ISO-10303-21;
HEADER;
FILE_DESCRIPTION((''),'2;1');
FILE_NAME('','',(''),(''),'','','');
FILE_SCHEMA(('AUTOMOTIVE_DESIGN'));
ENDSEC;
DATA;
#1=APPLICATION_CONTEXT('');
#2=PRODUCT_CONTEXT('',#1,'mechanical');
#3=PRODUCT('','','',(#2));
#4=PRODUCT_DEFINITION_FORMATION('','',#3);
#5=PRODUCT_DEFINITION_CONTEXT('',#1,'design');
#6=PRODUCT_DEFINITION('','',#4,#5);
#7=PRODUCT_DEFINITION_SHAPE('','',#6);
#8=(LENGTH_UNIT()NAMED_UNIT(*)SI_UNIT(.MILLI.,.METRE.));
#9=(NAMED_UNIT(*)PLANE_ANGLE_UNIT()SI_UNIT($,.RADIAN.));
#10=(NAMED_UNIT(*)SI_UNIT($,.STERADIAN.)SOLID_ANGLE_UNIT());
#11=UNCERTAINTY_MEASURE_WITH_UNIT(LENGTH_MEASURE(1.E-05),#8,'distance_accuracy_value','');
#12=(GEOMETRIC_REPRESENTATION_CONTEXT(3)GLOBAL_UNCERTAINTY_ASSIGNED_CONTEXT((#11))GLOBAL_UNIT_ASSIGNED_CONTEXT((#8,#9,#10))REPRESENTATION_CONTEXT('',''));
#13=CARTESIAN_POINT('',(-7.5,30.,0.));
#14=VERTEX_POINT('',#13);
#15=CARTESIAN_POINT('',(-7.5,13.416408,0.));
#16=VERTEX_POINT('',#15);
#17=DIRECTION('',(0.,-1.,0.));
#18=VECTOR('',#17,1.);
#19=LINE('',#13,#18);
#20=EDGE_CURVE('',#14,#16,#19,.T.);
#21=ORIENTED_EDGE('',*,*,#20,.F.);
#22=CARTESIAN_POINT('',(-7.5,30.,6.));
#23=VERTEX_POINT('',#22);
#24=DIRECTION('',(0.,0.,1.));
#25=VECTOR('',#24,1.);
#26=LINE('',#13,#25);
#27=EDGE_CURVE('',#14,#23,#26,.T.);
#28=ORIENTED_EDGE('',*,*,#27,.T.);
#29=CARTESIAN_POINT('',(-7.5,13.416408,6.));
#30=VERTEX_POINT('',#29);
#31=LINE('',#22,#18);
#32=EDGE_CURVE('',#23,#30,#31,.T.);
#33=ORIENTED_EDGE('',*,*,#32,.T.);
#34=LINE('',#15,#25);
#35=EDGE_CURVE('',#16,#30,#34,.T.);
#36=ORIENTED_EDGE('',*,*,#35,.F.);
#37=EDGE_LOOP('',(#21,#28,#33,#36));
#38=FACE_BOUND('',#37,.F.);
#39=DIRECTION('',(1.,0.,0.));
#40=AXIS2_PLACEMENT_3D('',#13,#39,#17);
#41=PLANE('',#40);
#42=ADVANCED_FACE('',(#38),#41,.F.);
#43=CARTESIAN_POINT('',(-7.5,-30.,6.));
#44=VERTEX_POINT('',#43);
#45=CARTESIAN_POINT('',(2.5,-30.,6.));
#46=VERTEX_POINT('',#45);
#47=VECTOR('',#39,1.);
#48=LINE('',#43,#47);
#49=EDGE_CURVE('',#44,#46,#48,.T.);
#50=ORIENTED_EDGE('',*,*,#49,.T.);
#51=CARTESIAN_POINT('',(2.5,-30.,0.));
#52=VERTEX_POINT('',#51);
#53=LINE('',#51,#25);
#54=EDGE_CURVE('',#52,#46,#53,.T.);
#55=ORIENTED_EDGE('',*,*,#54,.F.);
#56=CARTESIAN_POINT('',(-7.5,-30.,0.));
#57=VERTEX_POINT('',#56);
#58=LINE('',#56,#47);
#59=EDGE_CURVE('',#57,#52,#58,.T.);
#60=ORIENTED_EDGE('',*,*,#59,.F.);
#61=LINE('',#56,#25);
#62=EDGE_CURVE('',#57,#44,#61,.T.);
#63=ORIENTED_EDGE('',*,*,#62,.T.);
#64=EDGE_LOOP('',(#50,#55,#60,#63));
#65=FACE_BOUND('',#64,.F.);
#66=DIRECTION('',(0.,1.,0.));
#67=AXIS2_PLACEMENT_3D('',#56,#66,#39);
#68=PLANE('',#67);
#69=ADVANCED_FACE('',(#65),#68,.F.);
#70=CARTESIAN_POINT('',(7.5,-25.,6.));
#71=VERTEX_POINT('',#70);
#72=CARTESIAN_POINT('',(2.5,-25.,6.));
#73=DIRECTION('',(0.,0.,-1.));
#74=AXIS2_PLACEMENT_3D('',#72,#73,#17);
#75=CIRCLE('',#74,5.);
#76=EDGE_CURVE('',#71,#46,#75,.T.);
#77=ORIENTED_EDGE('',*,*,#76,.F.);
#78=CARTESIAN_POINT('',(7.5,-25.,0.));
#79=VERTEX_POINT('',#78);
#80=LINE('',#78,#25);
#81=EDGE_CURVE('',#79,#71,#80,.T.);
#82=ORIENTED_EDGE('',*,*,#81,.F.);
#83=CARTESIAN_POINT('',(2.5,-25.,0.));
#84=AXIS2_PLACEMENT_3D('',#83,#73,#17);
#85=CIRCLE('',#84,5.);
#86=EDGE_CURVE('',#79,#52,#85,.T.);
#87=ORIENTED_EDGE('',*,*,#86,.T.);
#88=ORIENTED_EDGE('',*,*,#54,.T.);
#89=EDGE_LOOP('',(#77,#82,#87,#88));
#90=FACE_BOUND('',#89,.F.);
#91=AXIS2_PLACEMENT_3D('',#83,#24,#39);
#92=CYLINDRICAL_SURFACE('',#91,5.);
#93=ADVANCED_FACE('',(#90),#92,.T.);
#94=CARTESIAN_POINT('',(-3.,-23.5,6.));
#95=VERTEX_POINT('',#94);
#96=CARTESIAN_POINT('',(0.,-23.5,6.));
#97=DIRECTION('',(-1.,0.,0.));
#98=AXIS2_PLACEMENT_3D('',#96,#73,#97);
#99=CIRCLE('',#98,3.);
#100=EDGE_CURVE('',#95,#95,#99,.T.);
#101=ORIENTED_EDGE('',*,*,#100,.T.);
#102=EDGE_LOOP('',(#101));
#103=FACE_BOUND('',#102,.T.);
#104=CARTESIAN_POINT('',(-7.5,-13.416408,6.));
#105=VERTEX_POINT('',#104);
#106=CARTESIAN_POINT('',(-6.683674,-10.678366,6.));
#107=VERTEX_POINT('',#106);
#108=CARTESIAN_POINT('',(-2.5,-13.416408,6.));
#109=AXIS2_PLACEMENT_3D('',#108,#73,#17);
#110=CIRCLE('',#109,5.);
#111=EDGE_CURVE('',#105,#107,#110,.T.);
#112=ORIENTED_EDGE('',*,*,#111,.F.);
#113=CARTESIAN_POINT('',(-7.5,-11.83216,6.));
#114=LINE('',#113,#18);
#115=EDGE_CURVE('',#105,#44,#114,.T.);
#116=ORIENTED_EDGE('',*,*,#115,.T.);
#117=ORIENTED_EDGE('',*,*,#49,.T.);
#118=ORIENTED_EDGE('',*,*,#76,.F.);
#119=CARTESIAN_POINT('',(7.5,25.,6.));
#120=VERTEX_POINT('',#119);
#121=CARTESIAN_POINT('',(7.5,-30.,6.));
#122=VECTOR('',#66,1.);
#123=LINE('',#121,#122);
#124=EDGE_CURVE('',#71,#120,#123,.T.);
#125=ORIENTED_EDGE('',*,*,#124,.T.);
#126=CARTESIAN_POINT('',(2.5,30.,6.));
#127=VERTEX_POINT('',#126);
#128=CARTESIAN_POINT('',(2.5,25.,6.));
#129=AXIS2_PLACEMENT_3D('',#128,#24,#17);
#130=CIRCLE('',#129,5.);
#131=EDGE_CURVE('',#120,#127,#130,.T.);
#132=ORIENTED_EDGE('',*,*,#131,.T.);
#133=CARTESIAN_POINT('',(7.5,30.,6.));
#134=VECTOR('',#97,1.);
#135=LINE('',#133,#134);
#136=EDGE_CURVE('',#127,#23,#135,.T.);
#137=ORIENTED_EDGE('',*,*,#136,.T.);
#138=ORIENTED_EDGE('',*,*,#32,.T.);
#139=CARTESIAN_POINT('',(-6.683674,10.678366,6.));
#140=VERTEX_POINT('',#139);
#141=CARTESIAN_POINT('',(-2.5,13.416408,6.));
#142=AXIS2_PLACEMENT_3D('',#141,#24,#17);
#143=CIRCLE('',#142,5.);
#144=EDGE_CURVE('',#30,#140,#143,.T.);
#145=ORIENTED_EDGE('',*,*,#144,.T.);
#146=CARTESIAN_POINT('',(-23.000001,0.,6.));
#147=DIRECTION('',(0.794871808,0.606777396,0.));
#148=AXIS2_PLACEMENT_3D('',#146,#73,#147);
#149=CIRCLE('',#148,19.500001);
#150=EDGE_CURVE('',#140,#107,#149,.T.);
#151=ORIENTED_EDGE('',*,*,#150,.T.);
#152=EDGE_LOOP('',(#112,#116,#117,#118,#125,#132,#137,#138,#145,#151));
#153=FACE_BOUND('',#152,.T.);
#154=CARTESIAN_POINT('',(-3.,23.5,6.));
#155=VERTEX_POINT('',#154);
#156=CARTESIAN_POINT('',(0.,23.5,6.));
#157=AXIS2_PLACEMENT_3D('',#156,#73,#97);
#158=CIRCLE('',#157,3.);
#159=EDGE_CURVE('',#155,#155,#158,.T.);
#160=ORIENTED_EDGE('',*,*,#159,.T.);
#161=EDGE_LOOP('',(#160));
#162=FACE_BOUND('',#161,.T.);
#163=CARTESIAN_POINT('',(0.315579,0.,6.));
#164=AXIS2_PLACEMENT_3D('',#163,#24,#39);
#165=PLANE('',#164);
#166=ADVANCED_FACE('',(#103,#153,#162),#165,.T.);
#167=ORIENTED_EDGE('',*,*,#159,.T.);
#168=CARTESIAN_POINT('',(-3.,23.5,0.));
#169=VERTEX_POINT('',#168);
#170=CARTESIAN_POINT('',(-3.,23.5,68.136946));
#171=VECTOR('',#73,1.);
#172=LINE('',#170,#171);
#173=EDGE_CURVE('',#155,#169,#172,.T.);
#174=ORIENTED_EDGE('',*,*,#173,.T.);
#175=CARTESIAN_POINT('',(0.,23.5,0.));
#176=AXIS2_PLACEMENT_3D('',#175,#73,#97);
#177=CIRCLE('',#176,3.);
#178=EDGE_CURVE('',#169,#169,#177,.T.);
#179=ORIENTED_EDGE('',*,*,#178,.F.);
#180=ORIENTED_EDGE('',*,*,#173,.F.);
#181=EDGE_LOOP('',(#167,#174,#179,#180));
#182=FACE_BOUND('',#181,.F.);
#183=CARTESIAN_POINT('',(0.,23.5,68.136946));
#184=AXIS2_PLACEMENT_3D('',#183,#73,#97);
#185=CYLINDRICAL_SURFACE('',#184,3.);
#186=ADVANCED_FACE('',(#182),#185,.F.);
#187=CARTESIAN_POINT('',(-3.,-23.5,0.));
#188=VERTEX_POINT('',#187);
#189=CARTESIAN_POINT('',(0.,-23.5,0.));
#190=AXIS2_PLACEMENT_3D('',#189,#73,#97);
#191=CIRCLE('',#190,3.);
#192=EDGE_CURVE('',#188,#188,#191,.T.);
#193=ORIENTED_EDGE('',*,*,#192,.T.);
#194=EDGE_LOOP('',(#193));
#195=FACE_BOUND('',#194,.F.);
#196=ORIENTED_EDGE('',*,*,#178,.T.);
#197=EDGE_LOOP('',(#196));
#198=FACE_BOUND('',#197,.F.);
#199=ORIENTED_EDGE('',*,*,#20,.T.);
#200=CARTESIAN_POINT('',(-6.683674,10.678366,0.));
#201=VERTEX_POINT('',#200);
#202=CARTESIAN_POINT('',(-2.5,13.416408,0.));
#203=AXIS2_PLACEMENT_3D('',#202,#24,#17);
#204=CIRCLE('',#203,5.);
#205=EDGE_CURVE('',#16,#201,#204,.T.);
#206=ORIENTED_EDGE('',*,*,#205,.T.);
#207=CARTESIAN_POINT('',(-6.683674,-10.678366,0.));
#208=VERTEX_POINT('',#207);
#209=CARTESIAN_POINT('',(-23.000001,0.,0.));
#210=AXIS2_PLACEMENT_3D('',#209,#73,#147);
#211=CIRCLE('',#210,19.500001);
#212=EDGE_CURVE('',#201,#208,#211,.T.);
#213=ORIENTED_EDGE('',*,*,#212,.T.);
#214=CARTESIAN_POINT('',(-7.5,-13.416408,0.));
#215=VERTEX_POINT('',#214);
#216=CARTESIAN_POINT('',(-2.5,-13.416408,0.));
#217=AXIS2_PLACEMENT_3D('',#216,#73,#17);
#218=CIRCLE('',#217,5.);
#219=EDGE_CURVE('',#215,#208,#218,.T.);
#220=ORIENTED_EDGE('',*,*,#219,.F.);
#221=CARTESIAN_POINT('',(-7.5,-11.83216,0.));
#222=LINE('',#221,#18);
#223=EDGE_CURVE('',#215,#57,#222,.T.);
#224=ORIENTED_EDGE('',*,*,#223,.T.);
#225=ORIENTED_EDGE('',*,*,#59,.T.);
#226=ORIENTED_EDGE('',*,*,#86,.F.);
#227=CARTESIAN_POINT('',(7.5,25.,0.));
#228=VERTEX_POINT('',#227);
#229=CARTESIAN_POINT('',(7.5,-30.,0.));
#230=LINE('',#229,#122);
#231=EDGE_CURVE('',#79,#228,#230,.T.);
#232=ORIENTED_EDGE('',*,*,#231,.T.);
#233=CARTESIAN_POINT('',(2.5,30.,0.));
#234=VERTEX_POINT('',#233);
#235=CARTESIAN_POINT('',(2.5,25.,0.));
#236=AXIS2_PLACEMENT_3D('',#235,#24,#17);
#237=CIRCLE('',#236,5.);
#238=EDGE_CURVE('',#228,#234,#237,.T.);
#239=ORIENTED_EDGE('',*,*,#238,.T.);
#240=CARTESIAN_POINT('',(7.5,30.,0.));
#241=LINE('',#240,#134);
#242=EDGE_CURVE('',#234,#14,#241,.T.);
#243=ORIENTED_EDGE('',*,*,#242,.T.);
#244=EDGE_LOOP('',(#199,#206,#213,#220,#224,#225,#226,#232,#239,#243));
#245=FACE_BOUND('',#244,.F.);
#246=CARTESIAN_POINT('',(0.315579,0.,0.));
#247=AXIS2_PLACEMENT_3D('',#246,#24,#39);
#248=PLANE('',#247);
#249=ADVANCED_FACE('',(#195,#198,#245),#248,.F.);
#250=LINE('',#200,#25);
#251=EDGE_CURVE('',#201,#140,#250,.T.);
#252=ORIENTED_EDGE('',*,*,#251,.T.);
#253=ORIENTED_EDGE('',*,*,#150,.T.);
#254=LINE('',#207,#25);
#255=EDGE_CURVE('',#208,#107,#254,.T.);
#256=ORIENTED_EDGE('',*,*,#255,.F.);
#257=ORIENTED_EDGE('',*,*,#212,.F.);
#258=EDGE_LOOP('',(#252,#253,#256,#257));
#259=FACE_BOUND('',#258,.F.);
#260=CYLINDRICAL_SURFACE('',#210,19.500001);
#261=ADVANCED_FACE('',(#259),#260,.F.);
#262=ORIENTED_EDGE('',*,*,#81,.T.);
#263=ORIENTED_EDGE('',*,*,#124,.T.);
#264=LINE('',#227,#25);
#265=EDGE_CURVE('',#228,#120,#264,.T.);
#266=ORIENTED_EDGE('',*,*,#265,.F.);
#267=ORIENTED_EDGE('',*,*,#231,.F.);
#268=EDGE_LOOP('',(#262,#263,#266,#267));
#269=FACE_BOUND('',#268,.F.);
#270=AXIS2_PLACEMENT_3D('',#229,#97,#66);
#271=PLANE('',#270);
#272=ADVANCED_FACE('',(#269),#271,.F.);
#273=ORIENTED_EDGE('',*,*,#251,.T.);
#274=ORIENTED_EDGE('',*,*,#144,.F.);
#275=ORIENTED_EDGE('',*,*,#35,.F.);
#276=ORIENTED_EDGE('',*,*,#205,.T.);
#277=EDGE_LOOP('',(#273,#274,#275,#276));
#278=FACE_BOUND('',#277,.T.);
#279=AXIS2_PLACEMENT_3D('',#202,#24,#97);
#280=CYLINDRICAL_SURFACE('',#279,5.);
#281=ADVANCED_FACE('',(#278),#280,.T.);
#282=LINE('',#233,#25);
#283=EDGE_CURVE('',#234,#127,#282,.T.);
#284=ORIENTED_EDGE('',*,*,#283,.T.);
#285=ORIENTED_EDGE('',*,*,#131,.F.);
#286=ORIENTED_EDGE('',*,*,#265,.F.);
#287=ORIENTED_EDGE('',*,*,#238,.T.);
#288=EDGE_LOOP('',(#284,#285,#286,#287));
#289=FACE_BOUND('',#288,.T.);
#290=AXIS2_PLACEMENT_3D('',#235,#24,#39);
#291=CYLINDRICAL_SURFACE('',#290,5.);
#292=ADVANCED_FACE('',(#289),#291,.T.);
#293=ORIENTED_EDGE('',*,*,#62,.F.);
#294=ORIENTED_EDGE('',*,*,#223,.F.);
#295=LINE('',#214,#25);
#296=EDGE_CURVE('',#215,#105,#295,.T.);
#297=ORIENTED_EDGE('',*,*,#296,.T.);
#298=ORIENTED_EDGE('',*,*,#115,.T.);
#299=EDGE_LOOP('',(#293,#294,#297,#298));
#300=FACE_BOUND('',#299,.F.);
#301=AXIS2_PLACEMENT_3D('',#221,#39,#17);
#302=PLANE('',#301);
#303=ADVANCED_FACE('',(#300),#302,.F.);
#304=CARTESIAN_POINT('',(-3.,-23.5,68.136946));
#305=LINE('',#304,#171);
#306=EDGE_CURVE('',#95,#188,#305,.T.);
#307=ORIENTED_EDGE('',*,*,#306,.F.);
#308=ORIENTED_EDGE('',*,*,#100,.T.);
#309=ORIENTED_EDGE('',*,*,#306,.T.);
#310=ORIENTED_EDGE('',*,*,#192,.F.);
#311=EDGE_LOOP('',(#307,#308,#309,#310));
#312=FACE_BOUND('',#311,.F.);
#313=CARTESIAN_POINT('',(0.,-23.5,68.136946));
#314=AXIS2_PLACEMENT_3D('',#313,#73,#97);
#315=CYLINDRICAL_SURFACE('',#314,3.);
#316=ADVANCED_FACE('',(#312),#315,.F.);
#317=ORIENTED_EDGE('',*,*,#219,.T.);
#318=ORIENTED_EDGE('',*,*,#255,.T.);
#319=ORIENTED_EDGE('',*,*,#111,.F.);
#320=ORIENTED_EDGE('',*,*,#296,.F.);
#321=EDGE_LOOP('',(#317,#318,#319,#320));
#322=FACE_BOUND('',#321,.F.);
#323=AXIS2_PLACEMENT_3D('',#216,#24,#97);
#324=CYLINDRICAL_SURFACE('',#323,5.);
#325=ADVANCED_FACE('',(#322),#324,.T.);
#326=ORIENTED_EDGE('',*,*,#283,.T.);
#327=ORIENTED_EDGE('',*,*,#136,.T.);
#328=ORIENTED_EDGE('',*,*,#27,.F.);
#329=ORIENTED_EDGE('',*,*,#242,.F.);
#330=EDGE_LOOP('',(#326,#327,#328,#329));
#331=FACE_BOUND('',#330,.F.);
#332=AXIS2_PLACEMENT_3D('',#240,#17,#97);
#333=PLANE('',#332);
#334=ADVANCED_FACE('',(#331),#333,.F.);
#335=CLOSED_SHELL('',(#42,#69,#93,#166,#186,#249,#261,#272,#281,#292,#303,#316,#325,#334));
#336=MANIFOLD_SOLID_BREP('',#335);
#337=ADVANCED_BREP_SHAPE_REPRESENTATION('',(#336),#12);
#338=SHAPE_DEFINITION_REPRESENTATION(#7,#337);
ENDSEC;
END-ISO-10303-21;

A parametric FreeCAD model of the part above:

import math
import FreeCAD as App
import Part
import Sketcher

V = App.Vector
Q = App.Units.Quantity


def edges_at(feature, points):
    """Names of the edges that pass closest to the given points."""
    edges = feature.Shape.Edges
    near = lambda p: min(range(len(edges)), key=lambda i: edges[i].distToShape(Part.Vertex(*p))[0])
    return sorted({f"Edge{near(p) + 1}" for p in points})

doc = App.newDocument("Part")
body = doc.addObject("PartDesign::Body", "Body")

# Sketch on XY plane
sketch1 = doc.addObject("Sketcher::SketchObject", "Sketch")
body.addObject(sketch1)
sketch1.AttachmentSupport = (doc.XY_Plane, [""])
sketch1.MapMode = "FlatFace"
sketch1.addGeometry([
    Part.LineSegment(V(8, -30, 0), V(8, 30, 0)),  # 0
    Part.LineSegment(V(8, 30, 0), V(-8, 30, 0)),  # 1
    Part.LineSegment(V(-8, 30, 0), V(-8, 12, 0)),  # 2
    Part.ArcOfCircle(Part.Circle(V(-23, 0, 0), V(0, 0, 1), 20), math.radians(-37), math.radians(37)),  # 3
    Part.LineSegment(V(-8, -12, 0), V(-8, -30, 0)),  # 4
    Part.LineSegment(V(-8, -30, 0), V(8, -30, 0)),  # 5
], False)
sketch1.addConstraint([
    Sketcher.Constraint("Coincident", 0, 2, 1, 1),
    Sketcher.Constraint("Coincident", 1, 2, 2, 1),
    Sketcher.Constraint("Coincident", 2, 2, 3, 2),
    Sketcher.Constraint("Coincident", 3, 1, 4, 1),
    Sketcher.Constraint("Coincident", 4, 2, 5, 1),
    Sketcher.Constraint("Coincident", 5, 2, 0, 1),
    Sketcher.Constraint("Vertical", 0),
    Sketcher.Constraint("Horizontal", 1),
    Sketcher.Constraint("Vertical", 2),
    Sketcher.Constraint("Vertical", 4),
    Sketcher.Constraint("Horizontal", 5),
    Sketcher.Constraint("Symmetric", 0, 2, 4, 2, -1, 1),
    Sketcher.Constraint("Symmetric", 2, 2, 3, 1, -1),
    Sketcher.Constraint("Radius", 3, Q("19.500001 mm")),
    Sketcher.Constraint("DistanceX", 1, 2, 1, 1, Q("15 mm")),
    Sketcher.Constraint("DistanceY", 0, 1, 0, 2, Q("60 mm")),
    Sketcher.Constraint("DistanceX", 3, 3, -1, 1, Q("23.000001 mm")),
])
pad1 = doc.addObject("PartDesign::Pad", "Pad")
body.addObject(pad1)
pad1.Profile = sketch1
pad1.Length = 6

# Sketch on XY plane
sketch2 = doc.addObject("Sketcher::SketchObject", "Sketch001")
body.addObject(sketch2)
sketch2.AttachmentSupport = (doc.XY_Plane, [""])
sketch2.MapMode = "FlatFace"
sketch2.AttachmentOffset = App.Placement(V(0, 0, 6), App.Rotation())
sketch2.addGeometry([
    Part.Circle(V(0, 23.5, 0), V(0, 0, 1), 3),
    Part.Circle(V(0, -23.5, 0), V(0, 0, 1), 3),
], False)
sketch2.addConstraint([
    Sketcher.Constraint("Equal", 0, 1),
    Sketcher.Constraint("Symmetric", 0, 3, 1, 3, -1, 1),
    Sketcher.Constraint("PointOnObject", 0, 3, -2),
    Sketcher.Constraint("Diameter", 0, Q("6 mm")),
    Sketcher.Constraint("DistanceY", 1, 3, 0, 3, Q("47 mm")),
])
doc.recompute()
hole = doc.addObject("PartDesign::Hole", "Hole")
body.addObject(hole)
hole.Profile = sketch2
hole.ThreadType = "None"
hole.Diameter = 6
hole.DepthType = "ThroughAll"
doc.recompute()

fillet = doc.addObject("PartDesign::Fillet", "Fillet")
body.addObject(fillet)
fillet.Base = (hole, edges_at(hole, [
    (7.5, 30, 3),
    (7.5, -30, 3),
    (-7.5, -11.832, 3),
    (-7.5, 11.832, 3),
]))
fillet.Radius = 5

doc.recompute()
